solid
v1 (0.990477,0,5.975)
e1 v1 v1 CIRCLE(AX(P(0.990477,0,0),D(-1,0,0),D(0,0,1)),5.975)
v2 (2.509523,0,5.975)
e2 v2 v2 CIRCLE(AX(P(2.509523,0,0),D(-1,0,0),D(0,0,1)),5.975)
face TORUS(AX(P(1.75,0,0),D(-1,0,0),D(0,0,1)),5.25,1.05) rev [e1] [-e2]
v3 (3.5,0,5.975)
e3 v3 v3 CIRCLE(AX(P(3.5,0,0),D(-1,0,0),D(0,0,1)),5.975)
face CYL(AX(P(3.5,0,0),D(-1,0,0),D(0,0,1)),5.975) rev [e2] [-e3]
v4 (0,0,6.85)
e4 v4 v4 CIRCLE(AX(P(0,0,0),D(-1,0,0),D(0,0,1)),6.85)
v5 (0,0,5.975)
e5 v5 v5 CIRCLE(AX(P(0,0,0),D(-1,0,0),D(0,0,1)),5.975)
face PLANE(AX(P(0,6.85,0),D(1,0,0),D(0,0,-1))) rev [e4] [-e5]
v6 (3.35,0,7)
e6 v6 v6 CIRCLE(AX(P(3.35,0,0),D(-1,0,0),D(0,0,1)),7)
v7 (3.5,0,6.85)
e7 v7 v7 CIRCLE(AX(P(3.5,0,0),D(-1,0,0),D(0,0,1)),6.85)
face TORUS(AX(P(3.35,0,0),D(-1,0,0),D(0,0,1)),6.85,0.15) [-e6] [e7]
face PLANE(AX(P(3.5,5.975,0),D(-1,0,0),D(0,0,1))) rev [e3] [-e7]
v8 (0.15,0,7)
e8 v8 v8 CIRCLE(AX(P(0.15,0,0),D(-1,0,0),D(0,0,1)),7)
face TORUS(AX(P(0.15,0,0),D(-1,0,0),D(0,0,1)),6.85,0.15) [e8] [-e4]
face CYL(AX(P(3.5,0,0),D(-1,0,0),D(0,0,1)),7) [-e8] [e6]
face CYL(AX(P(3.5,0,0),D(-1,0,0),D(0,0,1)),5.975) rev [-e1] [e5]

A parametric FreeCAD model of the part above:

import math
import FreeCAD as App
import Part
import Sketcher
from FreeCAD import Vector
Q = App.Units.Quantity

doc = App.newDocument("Part")
body = doc.addObject("PartDesign::Body", "Body")

# Sketch on XY plane
sketch1 = body.newObject("Sketcher::SketchObject", "Sketch")
sketch1.AttachmentSupport = (doc.getObject("XY_Plane"), [""])
sketch1.MapMode = "FlatFace"
sketch1.addGeometry(Part.LineSegment(Vector(0, 6.85, 0), Vector(0, 5.975, 0)), False)
sketch1.addGeometry(Part.LineSegment(Vector(0, 5.975, 0), Vector(0.990477, 5.975, 0)), False)
sketch1.addGeometry(Part.ArcOfCircle(Part.Circle(Vector(1.75, 5.25, 0), Vector(0, 0, 1), 1.05), math.radians(43.667815), math.radians(136.332185)), False)
sketch1.addGeometry(Part.LineSegment(Vector(2.509523, 5.975, 0), Vector(3.5, 5.975, 0)), False)
sketch1.addGeometry(Part.LineSegment(Vector(3.5, 5.975, 0), Vector(3.5, 6.85, 0)), False)
sketch1.addGeometry(Part.ArcOfCircle(Part.Circle(Vector(3.35, 6.85, 0), Vector(0, 0, 1), 0.15), math.radians(0), math.radians(90)), False)
sketch1.addGeometry(Part.LineSegment(Vector(3.35, 7, 0), Vector(0.15, 7, 0)), False)
sketch1.addGeometry(Part.ArcOfCircle(Part.Circle(Vector(0.15, 6.85, 0), Vector(0, 0, 1), 0.15), math.radians(90), math.radians(180)), False)
sketch1.addConstraint(Sketcher.Constraint("Coincident", 0, 2, 1, 1))
sketch1.addConstraint(Sketcher.Constraint("Coincident", 1, 2, 2, 2))
sketch1.addConstraint(Sketcher.Constraint("Coincident", 2, 1, 3, 1))
sketch1.addConstraint(Sketcher.Constraint("Coincident", 3, 2, 4, 1))
sketch1.addConstraint(Sketcher.Constraint("Tangent", 4, 2, 5, 1))
sketch1.addConstraint(Sketcher.Constraint("Tangent", 5, 2, 6, 1))
sketch1.addConstraint(Sketcher.Constraint("Tangent", 6, 2, 7, 1))
sketch1.addConstraint(Sketcher.Constraint("Tangent", 7, 2, 0, 1))
sketch1.addConstraint(Sketcher.Constraint("Vertical", 0))
sketch1.addConstraint(Sketcher.Constraint("Horizontal", 1))
sketch1.addConstraint(Sketcher.Constraint("Horizontal", 3))
sketch1.addConstraint(Sketcher.Constraint("Vertical", 4))
sketch1.addConstraint(Sketcher.Constraint("Horizontal", 6))
sketch1.addConstraint(Sketcher.Constraint("Equal", 5, 7))
sketch1.addConstraint(Sketcher.Constraint("PointOnObject", 0, 2, -2))
sketch1.addConstraint(Sketcher.Constraint("Horizontal", 1, 2, 2, 1))
sketch1.addConstraint(Sketcher.Constraint("Equal", 1, 3))
sketch1.addConstraint(Sketcher.Constraint("Radius", 2, Q("1.05 mm")))
sketch1.addConstraint(Sketcher.Constraint("Radius", 5, Q("0.15 mm")))
sketch1.addConstraint(Sketcher.Constraint("DistanceX", 6, 2, 6, 1, Q("3.2 mm")))
sketch1.addConstraint(Sketcher.Constraint("DistanceY", -1, 1, 5, 2, Q("7 mm")))
sketch1.addConstraint(Sketcher.Constraint("DistanceY", 2, 3, 5, 3, Q("1.6 mm")))
sketch1.addConstraint(Sketcher.Constraint("DistanceY", 0, 2, 0, 1, Q("0.875 mm")))
revolution = body.newObject("PartDesign::Revolution", "Revolution")
revolution.Profile = sketch1
revolution.ReferenceAxis = (sketch1, ["H_Axis"])
revolution.Angle = 360

doc.recompute()
